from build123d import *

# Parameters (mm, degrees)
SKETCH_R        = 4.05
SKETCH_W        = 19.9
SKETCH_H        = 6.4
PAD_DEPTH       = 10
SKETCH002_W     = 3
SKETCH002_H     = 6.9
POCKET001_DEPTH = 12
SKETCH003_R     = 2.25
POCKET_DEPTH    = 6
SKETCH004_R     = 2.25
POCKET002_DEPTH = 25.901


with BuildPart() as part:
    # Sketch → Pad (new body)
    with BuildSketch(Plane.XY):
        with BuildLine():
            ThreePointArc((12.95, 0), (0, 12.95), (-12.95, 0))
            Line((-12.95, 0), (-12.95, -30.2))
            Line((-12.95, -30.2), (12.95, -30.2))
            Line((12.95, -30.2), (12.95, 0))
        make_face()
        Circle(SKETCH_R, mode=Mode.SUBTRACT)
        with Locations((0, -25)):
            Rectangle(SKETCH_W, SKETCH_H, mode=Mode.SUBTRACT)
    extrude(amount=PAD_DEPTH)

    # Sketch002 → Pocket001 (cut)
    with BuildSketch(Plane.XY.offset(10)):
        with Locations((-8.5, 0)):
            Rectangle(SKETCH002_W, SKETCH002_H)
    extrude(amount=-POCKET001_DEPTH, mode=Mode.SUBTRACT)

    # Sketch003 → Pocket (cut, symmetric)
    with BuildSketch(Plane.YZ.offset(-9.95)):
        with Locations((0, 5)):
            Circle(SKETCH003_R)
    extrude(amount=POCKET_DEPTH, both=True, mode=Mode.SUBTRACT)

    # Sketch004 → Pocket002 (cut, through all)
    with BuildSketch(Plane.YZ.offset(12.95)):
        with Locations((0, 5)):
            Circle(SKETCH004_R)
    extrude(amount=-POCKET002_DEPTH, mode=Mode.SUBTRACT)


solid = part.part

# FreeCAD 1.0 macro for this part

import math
import FreeCAD as App
import Part
import Sketcher

V = App.Vector


def add_polygon(sketch, points):
    """Adds a closed chain of lines whose ends are joined by coincident constraints."""
    first, n = sketch.GeometryCount, len(points)
    for a, b in zip(points, points[1:] + points[:1]):
        sketch.addGeometry(Part.LineSegment(App.Vector(*a, 0), App.Vector(*b, 0)), False)
    for i in range(n):
        sketch.addConstraint(Sketcher.Constraint("Coincident", first + i, 2, first + (i + 1) % n, 1))

doc = App.newDocument("Part")
params = doc.addObject("Spreadsheet::Sheet", "Params")
for row, (alias, value) in enumerate([
    ("sketch1_diameter", "8.1 mm"),
    ("sketch1_radius", "12.95 mm"),
    ("sketch1_width", "19.9 mm"),
    ("sketch1_height", "30.2 mm"),
    ("sketch1_height2", "6.4 mm"),
    ("pad1_length", "10 mm"),
    ("sketch2_width", "3 mm"),
    ("sketch2_height", "6.9 mm"),
    ("pocket1_length", "12 mm"),
    ("sketch3_diameter", "4.5 mm"),
    ("pocket2_length", "12 mm"),
    ("sketch4_diameter", "4.5 mm"),
], start=1):
    params.set(f"A{row}", alias)
    params.set(f"B{row}", "=" + value)
    params.setAlias(f"B{row}", alias)

body = doc.addObject("PartDesign::Body", "Body")

# Sketch on XY plane
sketch1 = body.newObject("Sketcher::SketchObject", "Sketch")
sketch1.AttachmentSupport = (doc.getObject("XY_Plane"), [""])
sketch1.MapMode = "FlatFace"
sketch1.addGeometry(Part.ArcOfCircle(Part.Circle(V(0, 0, 0), V(0, 0, 1), 12.9), math.radians(0), math.radians(180)), False)  # 0
sketch1.addGeometry(Part.LineSegment(V(-12.9, 0, 0), V(-12.9, -30.2, 0)), False)  # 1
sketch1.addGeometry(Part.LineSegment(V(-12.9, -30.2, 0), V(12.9, -30.2, 0)), False)  # 2
sketch1.addGeometry(Part.LineSegment(V(12.9, -30.2, 0), V(12.9, 0, 0)), False)  # 3
add_polygon(sketch1, [(9.9, -28.2), (-9.9, -28.2), (-9.9, -21.8), (9.9, -21.8)])  # lines 4-7
sketch1.addGeometry(Part.Circle(V(0, 0, 0), V(0, 0, 1), 4), False)  # 8
sketch1.addConstraint(Sketcher.Constraint("Tangent", 0, 2, 1, 1))
sketch1.addConstraint(Sketcher.Constraint("Coincident", 1, 2, 2, 1))
sketch1.addConstraint(Sketcher.Constraint("Coincident", 2, 2, 3, 1))
sketch1.addConstraint(Sketcher.Constraint("Tangent", 3, 2, 0, 1))
sketch1.addConstraint(Sketcher.Constraint("Vertical", 1))
sketch1.addConstraint(Sketcher.Constraint("Horizontal", 2))
sketch1.addConstraint(Sketcher.Constraint("Vertical", 3))
sketch1.addConstraint(Sketcher.Constraint("Horizontal", 4))
sketch1.addConstraint(Sketcher.Constraint("Vertical", 5))
sketch1.addConstraint(Sketcher.Constraint("Horizontal", 6))
sketch1.addConstraint(Sketcher.Constraint("Vertical", 7))
sketch1.addConstraint(Sketcher.Constraint("Coincident", 0, 3, -1, 1))
sketch1.addConstraint(Sketcher.Constraint("Coincident", 8, 3, -1, 1))
sketch1.addConstraint(Sketcher.Constraint("Diameter", 8, 8.1))
sketch1.addConstraint(Sketcher.Constraint("Radius", 0, 12.95))
sketch1.addConstraint(Sketcher.Constraint("DistanceX", 4, 2, 4, 1, 19.9))
sketch1.addConstraint(Sketcher.Constraint("DistanceY", 1, 2, 1, 1, 30.2))
sketch1.addConstraint(Sketcher.Constraint("DistanceY", 5, 1, 5, 2, 6.4))
sketch1.addConstraint(Sketcher.Constraint("DistanceX", 1, 2, 4, 2, 3.0))
sketch1.addConstraint(Sketcher.Constraint("DistanceY", 1, 2, 4, 2, 2.0))
sketch1.setExpression("Constraints[17]", "Params.sketch1_diameter")
sketch1.setExpression("Constraints[18]", "Params.sketch1_radius")
sketch1.setExpression("Constraints[19]", "Params.sketch1_width")
sketch1.setExpression("Constraints[20]", "Params.sketch1_height")
sketch1.setExpression("Constraints[21]", "Params.sketch1_height2")
pad1 = body.newObject("PartDesign::Pad", "Pad")
pad1.Profile = sketch1
pad1.setExpression("Length", "Params.pad1_length")

# Sketch on XY plane
sketch2 = body.newObject("Sketcher::SketchObject", "Sketch001")
sketch2.AttachmentSupport = (doc.getObject("XY_Plane"), [""])
sketch2.MapMode = "FlatFace"
sketch2.AttachmentOffset = App.Placement(V(0, 0, 10), App.Rotation())
add_polygon(sketch2, [(-10, 3.5), (-10, -3.5), (-7, -3.5), (-7, 3.5)])  # lines 0-3
sketch2.addConstraint(Sketcher.Constraint("Vertical", 0))
sketch2.addConstraint(Sketcher.Constraint("Horizontal", 1))
sketch2.addConstraint(Sketcher.Constraint("Vertical", 2))
sketch2.addConstraint(Sketcher.Constraint("Horizontal", 3))
sketch2.addConstraint(Sketcher.Constraint("DistanceX", 1, 1, 1, 2, 3.0))
sketch2.addConstraint(Sketcher.Constraint("DistanceY", 0, 2, 0, 1, 6.9))
sketch2.addConstraint(Sketcher.Constraint("DistanceX", 0, 2, -1, 1, 10.0))
sketch2.addConstraint(Sketcher.Constraint("DistanceY", 0, 2, -1, 1, 3.45))
sketch2.setExpression("Constraints[8]", "Params.sketch2_width")
sketch2.setExpression("Constraints[9]", "Params.sketch2_height")
pocket1 = body.newObject("PartDesign::Pocket", "Pocket")
pocket1.Profile = sketch2
pocket1.setExpression("Length", "Params.pocket1_length")

# Sketch on YZ plane
sketch3 = body.newObject("Sketcher::SketchObject", "Sketch002")
sketch3.AttachmentSupport = (doc.getObject("YZ_Plane"), [""])
sketch3.MapMode = "FlatFace"
sketch3.AttachmentOffset = App.Placement(V(0, 0, -9.95), App.Rotation())
sketch3.addGeometry(Part.Circle(V(0, 5, 0), V(0, 0, 1), 2.2), False)
sketch3.addConstraint(Sketcher.Constraint("PointOnObject", 0, 3, -2))
sketch3.addConstraint(Sketcher.Constraint("Diameter", 0, 4.5))
sketch3.addConstraint(Sketcher.Constraint("DistanceY", -1, 1, 0, 3, 5.0))
sketch3.setExpression("Constraints[1]", "Params.sketch3_diameter")
pocket2 = body.newObject("PartDesign::Pocket", "Pocket001")
pocket2.Profile = sketch3
pocket2.setExpression("Length", "Params.pocket2_length")
pocket2.Midplane = True

# Sketch on YZ plane
sketch4 = body.newObject("Sketcher::SketchObject", "Sketch003")
sketch4.AttachmentSupport = (doc.getObject("YZ_Plane"), [""])
sketch4.MapMode = "FlatFace"
sketch4.AttachmentOffset = App.Placement(V(0, 0, 12.95), App.Rotation())
sketch4.addGeometry(Part.Circle(V(0, 5, 0), V(0, 0, 1), 2.2), False)
sketch4.addConstraint(Sketcher.Constraint("PointOnObject", 0, 3, -2))
sketch4.addConstraint(Sketcher.Constraint("Diameter", 0, 4.5))
sketch4.addConstraint(Sketcher.Constraint("DistanceY", -1, 1, 0, 3, 5.0))
sketch4.setExpression("Constraints[1]", "Params.sketch4_diameter")
pocket3 = body.newObject("PartDesign::Pocket", "Pocket002")
pocket3.Profile = sketch4
pocket3.Type = "ThroughAll"

doc.recompute()
